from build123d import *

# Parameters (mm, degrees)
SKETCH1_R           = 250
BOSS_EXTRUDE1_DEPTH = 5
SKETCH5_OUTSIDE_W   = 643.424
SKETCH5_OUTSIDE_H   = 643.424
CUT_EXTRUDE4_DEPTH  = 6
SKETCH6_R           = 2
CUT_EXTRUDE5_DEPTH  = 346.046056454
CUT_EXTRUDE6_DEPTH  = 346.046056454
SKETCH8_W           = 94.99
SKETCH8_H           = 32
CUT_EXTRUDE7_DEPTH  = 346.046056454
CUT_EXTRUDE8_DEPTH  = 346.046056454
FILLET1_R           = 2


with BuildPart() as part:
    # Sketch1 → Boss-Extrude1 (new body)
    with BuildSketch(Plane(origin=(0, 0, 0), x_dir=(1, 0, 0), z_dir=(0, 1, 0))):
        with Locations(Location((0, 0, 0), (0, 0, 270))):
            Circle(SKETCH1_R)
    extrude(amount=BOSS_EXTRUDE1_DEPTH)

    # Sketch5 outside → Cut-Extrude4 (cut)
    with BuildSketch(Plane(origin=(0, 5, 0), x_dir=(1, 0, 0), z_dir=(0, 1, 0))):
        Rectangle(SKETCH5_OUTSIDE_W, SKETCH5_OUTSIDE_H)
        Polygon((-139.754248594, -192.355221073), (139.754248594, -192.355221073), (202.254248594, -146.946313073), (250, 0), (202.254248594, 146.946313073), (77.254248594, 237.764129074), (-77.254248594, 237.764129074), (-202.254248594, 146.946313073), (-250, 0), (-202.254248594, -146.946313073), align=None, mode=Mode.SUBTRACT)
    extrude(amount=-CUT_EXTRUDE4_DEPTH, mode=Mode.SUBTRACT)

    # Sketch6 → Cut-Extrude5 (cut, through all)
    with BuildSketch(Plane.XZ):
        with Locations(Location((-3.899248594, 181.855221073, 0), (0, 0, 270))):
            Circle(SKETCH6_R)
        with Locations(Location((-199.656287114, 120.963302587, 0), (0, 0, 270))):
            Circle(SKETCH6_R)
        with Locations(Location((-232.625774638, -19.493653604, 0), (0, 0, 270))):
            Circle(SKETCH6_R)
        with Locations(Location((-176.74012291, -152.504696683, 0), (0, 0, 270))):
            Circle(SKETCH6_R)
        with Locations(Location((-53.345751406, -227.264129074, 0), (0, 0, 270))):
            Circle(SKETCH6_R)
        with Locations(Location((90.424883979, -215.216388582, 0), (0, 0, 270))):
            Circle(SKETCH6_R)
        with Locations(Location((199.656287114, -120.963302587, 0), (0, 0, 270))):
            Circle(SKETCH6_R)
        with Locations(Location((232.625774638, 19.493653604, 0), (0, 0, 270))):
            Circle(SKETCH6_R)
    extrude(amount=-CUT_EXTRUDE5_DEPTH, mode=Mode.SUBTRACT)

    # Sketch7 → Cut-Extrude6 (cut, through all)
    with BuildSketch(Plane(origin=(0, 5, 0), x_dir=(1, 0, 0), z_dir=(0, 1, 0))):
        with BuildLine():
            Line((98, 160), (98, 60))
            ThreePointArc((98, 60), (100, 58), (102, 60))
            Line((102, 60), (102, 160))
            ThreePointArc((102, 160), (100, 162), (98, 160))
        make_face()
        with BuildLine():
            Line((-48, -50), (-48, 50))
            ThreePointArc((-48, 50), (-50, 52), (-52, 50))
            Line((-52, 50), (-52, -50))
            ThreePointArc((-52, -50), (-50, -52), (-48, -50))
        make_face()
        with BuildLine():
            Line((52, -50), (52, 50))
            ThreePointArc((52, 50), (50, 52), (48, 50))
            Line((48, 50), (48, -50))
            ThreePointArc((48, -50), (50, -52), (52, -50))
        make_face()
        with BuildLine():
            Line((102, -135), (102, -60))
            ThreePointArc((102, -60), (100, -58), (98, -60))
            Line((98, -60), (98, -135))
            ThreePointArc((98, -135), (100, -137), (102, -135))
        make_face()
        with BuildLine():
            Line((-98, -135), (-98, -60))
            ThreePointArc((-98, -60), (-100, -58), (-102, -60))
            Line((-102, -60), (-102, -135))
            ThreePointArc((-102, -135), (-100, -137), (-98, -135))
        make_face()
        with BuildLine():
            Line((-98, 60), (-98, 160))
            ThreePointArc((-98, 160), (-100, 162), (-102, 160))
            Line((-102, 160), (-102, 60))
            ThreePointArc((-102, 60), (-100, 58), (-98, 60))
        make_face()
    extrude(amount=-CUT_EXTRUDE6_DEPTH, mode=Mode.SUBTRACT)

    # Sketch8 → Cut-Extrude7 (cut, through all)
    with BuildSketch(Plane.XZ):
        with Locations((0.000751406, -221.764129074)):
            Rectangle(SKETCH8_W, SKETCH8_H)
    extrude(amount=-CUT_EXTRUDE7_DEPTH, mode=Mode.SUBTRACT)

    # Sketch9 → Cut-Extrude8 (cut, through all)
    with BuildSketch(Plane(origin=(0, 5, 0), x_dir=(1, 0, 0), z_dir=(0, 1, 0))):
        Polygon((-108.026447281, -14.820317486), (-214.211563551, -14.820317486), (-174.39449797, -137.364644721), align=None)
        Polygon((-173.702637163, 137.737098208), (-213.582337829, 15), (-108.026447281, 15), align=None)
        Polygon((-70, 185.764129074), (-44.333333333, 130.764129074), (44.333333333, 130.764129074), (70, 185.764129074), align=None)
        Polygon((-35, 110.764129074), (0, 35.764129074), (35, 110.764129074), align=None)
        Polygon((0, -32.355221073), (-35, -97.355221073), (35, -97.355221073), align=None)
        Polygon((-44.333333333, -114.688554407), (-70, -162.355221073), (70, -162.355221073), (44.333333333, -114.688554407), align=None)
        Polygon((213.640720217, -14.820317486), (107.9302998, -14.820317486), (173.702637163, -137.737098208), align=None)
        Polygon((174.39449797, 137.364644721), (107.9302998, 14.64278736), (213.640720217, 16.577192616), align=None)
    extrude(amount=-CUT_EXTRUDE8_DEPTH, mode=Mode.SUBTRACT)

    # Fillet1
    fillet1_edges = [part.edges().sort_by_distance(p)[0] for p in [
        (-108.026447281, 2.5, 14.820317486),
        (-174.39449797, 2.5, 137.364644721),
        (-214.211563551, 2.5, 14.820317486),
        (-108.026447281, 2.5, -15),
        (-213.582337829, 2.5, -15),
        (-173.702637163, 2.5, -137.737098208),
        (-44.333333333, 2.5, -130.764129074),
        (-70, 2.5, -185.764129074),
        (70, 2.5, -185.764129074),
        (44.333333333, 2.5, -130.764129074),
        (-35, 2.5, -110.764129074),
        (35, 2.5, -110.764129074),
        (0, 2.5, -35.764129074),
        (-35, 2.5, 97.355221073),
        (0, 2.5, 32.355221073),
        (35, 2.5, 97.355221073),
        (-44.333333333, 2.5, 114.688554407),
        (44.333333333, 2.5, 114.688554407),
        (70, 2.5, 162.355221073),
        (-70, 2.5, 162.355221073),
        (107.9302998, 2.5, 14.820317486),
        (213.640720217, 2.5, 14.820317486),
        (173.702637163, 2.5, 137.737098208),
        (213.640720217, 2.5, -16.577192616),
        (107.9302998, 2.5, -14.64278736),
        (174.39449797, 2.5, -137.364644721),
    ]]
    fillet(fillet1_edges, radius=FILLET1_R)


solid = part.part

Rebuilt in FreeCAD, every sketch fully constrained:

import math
import FreeCAD as App
import Part
import Sketcher
Q = App.Units.Quantity


def edges_at(feature, points):
    """Names of the edges that pass closest to the given points."""
    edges = feature.Shape.Edges
    near = lambda p: min(range(len(edges)), key=lambda i: edges[i].distToShape(Part.Vertex(*p))[0])
    return sorted({f"Edge{near(p) + 1}" for p in points})


def add_polygon(sketch, points):
    """Adds a closed chain of lines whose ends are joined by coincident constraints."""
    first, n = sketch.GeometryCount, len(points)
    for a, b in zip(points, points[1:] + points[:1]):
        sketch.addGeometry(Part.LineSegment(App.Vector(*a, 0), App.Vector(*b, 0)), False)
    for i in range(n):
        sketch.addConstraint(Sketcher.Constraint("Coincident", first + i, 2, first + (i + 1) % n, 1))

doc = App.newDocument("Part")
body = doc.addObject("PartDesign::Body", "Body")

# Sketch on XZ plane
sketch1 = body.newObject("Sketcher::SketchObject", "Sketch")
sketch1.AttachmentSupport = (doc.getObject("XZ_Plane"), [""])
sketch1.MapMode = "FlatFace"
sketch1.addGeometry(Part.Circle(App.Vector(0, 0, 0), App.Vector(0, 0, 1), 250), False)
sketch1.addConstraint([
    Sketcher.Constraint("Coincident", 0, 3, -1, 1),
    Sketcher.Constraint("Diameter", 0, 500.0),
])
pad1 = body.newObject("PartDesign::Pad", "Pad")
pad1.Profile = sketch1
pad1.Length = 5
pad1.Reversed = True

# Sketch on XZ plane
sketch2 = body.newObject("Sketcher::SketchObject", "Sketch001")
sketch2.AttachmentSupport = (doc.getObject("XZ_Plane"), [""])
sketch2.MapMode = "FlatFace"
sketch2.AttachmentOffset = App.Placement(App.Vector(0, 0, -5), App.Rotation())
add_polygon(sketch2, [(-321.712, -321.712), (-321.712, 321.712), (321.712, 321.712), (321.712, -321.712)])  # lines 0-3
add_polygon(sketch2, [(139.754249, 192.355221), (-139.754249, 192.355221), (-202.254249, 146.946313), (-250, 0), (-202.254249, -146.946313), (-77.254249, -237.764129), (77.254249, -237.764129), (202.254249, -146.946313), (250, 0), (202.254249, 146.946313)])  # lines 4-13
sketch2.addConstraint([
    Sketcher.Constraint("Vertical", 0),
    Sketcher.Constraint("Horizontal", 1),
    Sketcher.Constraint("Vertical", 2),
    Sketcher.Constraint("Horizontal", 3),
    Sketcher.Constraint("Horizontal", 4),
    Sketcher.Constraint("Horizontal", 9),
    Sketcher.Constraint("Symmetric", 0, 2, 2, 2, -1, 1),
    Sketcher.Constraint("Symmetric", 5, 2, 10, 2, -1, 1),
    Sketcher.Constraint("Symmetric", 6, 2, 11, 2, -1, 1),
    Sketcher.Constraint("Symmetric", 7, 2, 12, 2, -1, 1),
    Sketcher.Constraint("Symmetric", 7, 2, 10, 2, -2),
    Sketcher.Constraint("PointOnObject", 6, 2, -1),
    Sketcher.Constraint("Parallel", 5, 10),
    Sketcher.Constraint("Parallel", 8, 13),
    Sketcher.Constraint("Equal", 3, 0),
    Sketcher.Constraint("Equal", 7, 8),
    Sketcher.Constraint("Equal", 8, 10),
    Sketcher.Constraint("Angle", 5, Q("-144 deg")),
    Sketcher.Constraint("Angle", 6, Q("-108 deg")),
    Sketcher.Constraint("DistanceX", 6, 2, -1, 1, 250.0),
    Sketcher.Constraint("DistanceX", 7, 2, 8, 2, 125.0),
    Sketcher.Constraint("DistanceX", 5, 2, 4, 2, 62.5),
    Sketcher.Constraint("DistanceX", 1, 1, 1, 2, 643.424),
])
pocket1 = body.newObject("PartDesign::Pocket", "Pocket")
pocket1.Profile = sketch2
pocket1.Length = 6
pocket1.Reversed = True

# Sketch on XZ plane
sketch3 = body.newObject("Sketcher::SketchObject", "Sketch002")
sketch3.AttachmentSupport = (doc.getObject("XZ_Plane"), [""])
sketch3.MapMode = "FlatFace"
sketch3.addGeometry([
    Part.Circle(App.Vector(-3.899249, 181.855221, 0), App.Vector(0, 0, 1), 2),  # 0
    Part.Circle(App.Vector(-199.656287, 120.963303, 0), App.Vector(0, 0, 1), 2),  # 1
    Part.Circle(App.Vector(-232.625775, -19.493654, 0), App.Vector(0, 0, 1), 2),  # 2
    Part.Circle(App.Vector(-176.740123, -152.504697, 0), App.Vector(0, 0, 1), 2),  # 3
    Part.Circle(App.Vector(-53.345751, -227.264129, 0), App.Vector(0, 0, 1), 2),  # 4
    Part.Circle(App.Vector(90.424884, -215.216389, 0), App.Vector(0, 0, 1), 2),  # 5
    Part.Circle(App.Vector(199.656287, -120.963303, 0), App.Vector(0, 0, 1), 2),  # 6
    Part.Circle(App.Vector(232.625775, 19.493654, 0), App.Vector(0, 0, 1), 2),  # 7
], False)
sketch3.addConstraint([
    Sketcher.Constraint("Equal", 0, 1),
    Sketcher.Constraint("Equal", 1, 2),
    Sketcher.Constraint("Equal", 2, 3),
    Sketcher.Constraint("Equal", 3, 4),
    Sketcher.Constraint("Equal", 4, 5),
    Sketcher.Constraint("Equal", 5, 6),
    Sketcher.Constraint("Equal", 6, 7),
    Sketcher.Constraint("Symmetric", 1, 3, 6, 3, -1, 1),
    Sketcher.Constraint("Symmetric", 2, 3, 7, 3, -1, 1),
    Sketcher.Constraint("Diameter", 0, 4.0),
    Sketcher.Constraint("DistanceY", 3, 3, 1, 3, 273.467999),
    Sketcher.Constraint("DistanceX", 0, 3, -1, 1, 3.899249),
    Sketcher.Constraint("DistanceY", -1, 1, 0, 3, 181.855221),
    Sketcher.Constraint("DistanceX", 4, 3, -1, 1, 53.345751),
    Sketcher.Constraint("DistanceY", 4, 3, -1, 1, 227.264129),
    Sketcher.Constraint("DistanceY", 5, 3, -1, 1, 215.216389),
    Sketcher.Constraint("DistanceX", 1, 3, 0, 3, 195.757039),
    Sketcher.Constraint("DistanceY", 1, 3, 0, 3, 60.891918),
    Sketcher.Constraint("DistanceX", 2, 3, 3, 3, 55.885652),
    Sketcher.Constraint("DistanceX", 3, 3, 4, 3, 123.394372),
    Sketcher.Constraint("DistanceX", 2, 3, 5, 3, 323.050659),
    Sketcher.Constraint("DistanceY", 6, 3, 2, 3, 101.469649),
])
pocket2 = body.newObject("PartDesign::Pocket", "Pocket001")
pocket2.Profile = sketch3
pocket2.Type = "ThroughAll"

# Sketch on XZ plane
sketch4 = body.newObject("Sketcher::SketchObject", "Sketch003")
sketch4.AttachmentSupport = (doc.getObject("XZ_Plane"), [""])
sketch4.MapMode = "FlatFace"
sketch4.AttachmentOffset = App.Placement(App.Vector(0, 0, -5), App.Rotation())
sketch4.addGeometry([
    Part.LineSegment(App.Vector(98, -160, 0), App.Vector(98, -60, 0)),  # 0
    Part.ArcOfCircle(Part.Circle(App.Vector(100, -60, 0), App.Vector(0, 0, 1), 2), math.radians(0), math.radians(180)),  # 1
    Part.LineSegment(App.Vector(102, -60, 0), App.Vector(102, -160, 0)),  # 2
    Part.ArcOfCircle(Part.Circle(App.Vector(100, -160, 0), App.Vector(0, 0, 1), 2), math.radians(180), math.radians(360)),  # 3
    Part.LineSegment(App.Vector(-48, 50, 0), App.Vector(-48, -50, 0)),  # 4
    Part.ArcOfCircle(Part.Circle(App.Vector(-50, -50, 0), App.Vector(0, 0, 1), 2), math.radians(180), math.radians(360)),  # 5
    Part.LineSegment(App.Vector(-52, -50, 0), App.Vector(-52, 50, 0)),  # 6
    Part.ArcOfCircle(Part.Circle(App.Vector(-50, 50, 0), App.Vector(0, 0, 1), 2), math.radians(0), math.radians(180)),  # 7
    Part.LineSegment(App.Vector(52, 50, 0), App.Vector(52, -50, 0)),  # 8
    Part.ArcOfCircle(Part.Circle(App.Vector(50, -50, 0), App.Vector(0, 0, 1), 2), math.radians(180), math.radians(360)),  # 9
    Part.LineSegment(App.Vector(48, -50, 0), App.Vector(48, 50, 0)),  # 10
    Part.ArcOfCircle(Part.Circle(App.Vector(50, 50, 0), App.Vector(0, 0, 1), 2), math.radians(0), math.radians(180)),  # 11
    Part.LineSegment(App.Vector(102, 135, 0), App.Vector(102, 60, 0)),  # 12
    Part.ArcOfCircle(Part.Circle(App.Vector(100, 60, 0), App.Vector(0, 0, 1), 2), math.radians(180), math.radians(360)),  # 13
    Part.LineSegment(App.Vector(98, 60, 0), App.Vector(98, 135, 0)),  # 14
    Part.ArcOfCircle(Part.Circle(App.Vector(100, 135, 0), App.Vector(0, 0, 1), 2), math.radians(0), math.radians(180)),  # 15
    Part.LineSegment(App.Vector(-98, 135, 0), App.Vector(-98, 60, 0)),  # 16
    Part.ArcOfCircle(Part.Circle(App.Vector(-100, 60, 0), App.Vector(0, 0, 1), 2), math.radians(180), math.radians(360)),  # 17
    Part.LineSegment(App.Vector(-102, 60, 0), App.Vector(-102, 135, 0)),  # 18
    Part.ArcOfCircle(Part.Circle(App.Vector(-100, 135, 0), App.Vector(0, 0, 1), 2), math.radians(0), math.radians(180)),  # 19
    Part.LineSegment(App.Vector(-98, -60, 0), App.Vector(-98, -160, 0)),  # 20
    Part.ArcOfCircle(Part.Circle(App.Vector(-100, -160, 0), App.Vector(0, 0, 1), 2), math.radians(180), math.radians(360)),  # 21
    Part.LineSegment(App.Vector(-102, -160, 0), App.Vector(-102, -60, 0)),  # 22
    Part.ArcOfCircle(Part.Circle(App.Vector(-100, -60, 0), App.Vector(0, 0, 1), 2), math.radians(0), math.radians(180)),  # 23
], False)
sketch4.addConstraint([
    Sketcher.Constraint("Tangent", 0, 2, 1, 2),
    Sketcher.Constraint("Tangent", 1, 1, 2, 1),
    Sketcher.Constraint("Tangent", 2, 2, 3, 2),
    Sketcher.Constraint("Tangent", 3, 1, 0, 1),
    Sketcher.Constraint("Tangent", 4, 2, 5, 2),
    Sketcher.Constraint("Tangent", 5, 1, 6, 1),
    Sketcher.Constraint("Tangent", 6, 2, 7, 2),
    Sketcher.Constraint("Tangent", 7, 1, 4, 1),
    Sketcher.Constraint("Tangent", 8, 2, 9, 2),
    Sketcher.Constraint("Tangent", 9, 1, 10, 1),
    Sketcher.Constraint("Tangent", 10, 2, 11, 2),
    Sketcher.Constraint("Tangent", 11, 1, 8, 1),
    Sketcher.Constraint("Tangent", 12, 2, 13, 2),
    Sketcher.Constraint("Tangent", 13, 1, 14, 1),
    Sketcher.Constraint("Tangent", 14, 2, 15, 2),
    Sketcher.Constraint("Tangent", 15, 1, 12, 1),
    Sketcher.Constraint("Tangent", 16, 2, 17, 2),
    Sketcher.Constraint("Tangent", 17, 1, 18, 1),
    Sketcher.Constraint("Tangent", 18, 2, 19, 2),
    Sketcher.Constraint("Tangent", 19, 1, 16, 1),
    Sketcher.Constraint("Tangent", 20, 2, 21, 2),
    Sketcher.Constraint("Tangent", 21, 1, 22, 1),
    Sketcher.Constraint("Tangent", 22, 2, 23, 2),
    Sketcher.Constraint("Tangent", 23, 1, 20, 1),
    Sketcher.Constraint("Vertical", 0),
    Sketcher.Constraint("Vertical", 2),
    Sketcher.Constraint("Vertical", 4),
    Sketcher.Constraint("Vertical", 6),
    Sketcher.Constraint("Vertical", 8),
    Sketcher.Constraint("Vertical", 10),
    Sketcher.Constraint("Vertical", 12),
    Sketcher.Constraint("Vertical", 14),
    Sketcher.Constraint("Vertical", 16),
    Sketcher.Constraint("Vertical", 18),
    Sketcher.Constraint("Vertical", 20),
    Sketcher.Constraint("Vertical", 22),
    Sketcher.Constraint("Equal", 3, 5),
    Sketcher.Constraint("Equal", 7, 9),
    Sketcher.Constraint("Equal", 11, 13),
    Sketcher.Constraint("Equal", 15, 17),
    Sketcher.Constraint("Equal", 19, 21),
    Sketcher.Constraint("Symmetric", 7, 3, 9, 3, -1, 1),
    Sketcher.Constraint("Symmetric", 1, 3, 17, 3, -1, 1),
    Sketcher.Constraint("Symmetric", 13, 3, 23, 3, -1, 1),
    Sketcher.Constraint("Symmetric", 13, 3, 17, 3, -2),
    Sketcher.Constraint("Horizontal", 5, 3, 9, 3),
    Sketcher.Constraint("Horizontal", 7, 3, 11, 3),
    Sketcher.Constraint("Horizontal", 15, 3, 19, 3),
    Sketcher.Constraint("Horizontal", 3, 3, 21, 3),
    Sketcher.Constraint("Equal", 2, 4),
    Sketcher.Constraint("Radius", 1, 2.0),
    Sketcher.Constraint("DistanceY", 0, 1, 0, 2, 100.0),
    Sketcher.Constraint("DistanceY", 12, 2, 12, 1, 75.0),
    Sketcher.Constraint("DistanceX", -1, 1, 1, 3, 100.0),
    Sketcher.Constraint("DistanceY", 1, 3, -1, 1, 60.0),
    Sketcher.Constraint("DistanceX", 5, 3, -1, 1, 50.0),
])
pocket3 = body.newObject("PartDesign::Pocket", "Pocket002")
pocket3.Profile = sketch4
pocket3.Type = "ThroughAll"
pocket3.Reversed = True

# Sketch on XZ plane
sketch5 = body.newObject("Sketcher::SketchObject", "Sketch004")
sketch5.AttachmentSupport = (doc.getObject("XZ_Plane"), [""])
sketch5.MapMode = "FlatFace"
add_polygon(sketch5, [(-47.494249, -205.764129), (-47.494249, -237.764129), (47.495751, -237.764129), (47.495751, -205.764129)])  # lines 0-3
sketch5.addConstraint([
    Sketcher.Constraint("Vertical", 0),
    Sketcher.Constraint("Horizontal", 1),
    Sketcher.Constraint("Vertical", 2),
    Sketcher.Constraint("Horizontal", 3),
    Sketcher.Constraint("DistanceY", 0, 2, 0, 1, 32.0),
    Sketcher.Constraint("DistanceX", 1, 1, 1, 2, 94.99),
    Sketcher.Constraint("DistanceX", 0, 2, -1, 1, 47.494249),
    Sketcher.Constraint("DistanceY", 0, 2, -1, 1, 237.764129),
])
pocket4 = body.newObject("PartDesign::Pocket", "Pocket003")
pocket4.Profile = sketch5
pocket4.Type = "ThroughAll"

# Sketch on XZ plane
sketch6 = body.newObject("Sketcher::SketchObject", "Sketch005")
sketch6.AttachmentSupport = (doc.getObject("XZ_Plane"), [""])
sketch6.MapMode = "FlatFace"
sketch6.AttachmentOffset = App.Placement(App.Vector(0, 0, -5), App.Rotation())
add_polygon(sketch6, [(-108.026447, 14.820317), (-214.211564, 14.820317), (-174.394498, 137.364645)])  # lines 0-2
add_polygon(sketch6, [(-173.702637, -137.737098), (-213.582338, -15), (-108.026447, -15)])  # lines 3-5
add_polygon(sketch6, [(-70, -185.764129), (-44.333333, -130.764129), (44.333333, -130.764129), (70, -185.764129)])  # lines 6-9
add_polygon(sketch6, [(-35, -110.764129), (0, -35.764129), (35, -110.764129)])  # lines 10-12
add_polygon(sketch6, [(0, 32.355221), (-35, 97.355221), (35, 97.355221)])  # lines 13-15
add_polygon(sketch6, [(-44.333333, 114.688554), (-70, 162.355221), (70, 162.355221), (44.333333, 114.688554)])  # lines 16-19
add_polygon(sketch6, [(213.64072, 14.820317), (107.9303, 14.820317), (173.702637, 137.737098)])  # lines 20-22
add_polygon(sketch6, [(174.394498, -137.364645), (107.9303, -14.642787), (213.64072, -16.577193)])  # lines 23-25
sketch6.addConstraint([
    Sketcher.Constraint("Horizontal", 0),
    Sketcher.Constraint("Horizontal", 4),
    Sketcher.Constraint("Horizontal", 7),
    Sketcher.Constraint("Horizontal", 9),
    Sketcher.Constraint("Horizontal", 12),
    Sketcher.Constraint("Horizontal", 14),
    Sketcher.Constraint("Horizontal", 17),
    Sketcher.Constraint("Horizontal", 19),
    Sketcher.Constraint("Horizontal", 20),
    Sketcher.Constraint("Symmetric", 5, 2, 21, 2, -1, 1),
    Sketcher.Constraint("Symmetric", 1, 2, 25, 2, -1, 1),
    Sketcher.Constraint("PointOnObject", 10, 2, -2),
    Sketcher.Constraint("PointOnObject", 15, 2, -2),
    Sketcher.Constraint("Parallel", 6, 10),
    Sketcher.Constraint("Parallel", 8, 11),
    Sketcher.Constraint("Parallel", 13, 16),
    Sketcher.Constraint("Parallel", 15, 18),
    Sketcher.Constraint("Parallel", 5, 21),
    Sketcher.Constraint("Parallel", 3, 22),
    Sketcher.Constraint("Parallel", 2, 23),
    Sketcher.Constraint("Parallel", 1, 25),
    Sketcher.Constraint("Horizontal", 2, 2, 20, 2),
    Sketcher.Constraint("Vertical", 2, 2, 4, 2),
    Sketcher.Constraint("Vertical", 12, 2, 13, 2),
    Sketcher.Constraint("Vertical", 11, 2, 14, 2),
    Sketcher.Constraint("Vertical", 9, 2, 16, 2),
    Sketcher.Constraint("Vertical", 8, 2, 17, 2),
    Sketcher.Constraint("Vertical", 7, 2, 18, 2),
    Sketcher.Constraint("Vertical", 20, 2, 23, 2),
    Sketcher.Constraint("Vertical", 22, 2, 24, 2),
    Sketcher.Constraint("Equal", 6, 8),
    Sketcher.Constraint("DistanceX", 9, 2, 9, 1, 140.0),
    Sketcher.Constraint("DistanceX", 12, 2, 12, 1, 70.0),
    Sketcher.Constraint("Angle", 1, Q("72 deg")),
    Sketcher.Constraint("Angle", 3, Q("108 deg")),
    Sketcher.Constraint("DistanceY", 3, 2, -1, 1, 15.0),
    Sketcher.Constraint("DistanceX", -1, 1, 8, 2, 70.0),
    Sketcher.Constraint("DistanceY", 8, 2, 7, 2, 55.0),
    Sketcher.Constraint("DistanceY", 6, 2, 10, 2, 95.0),
    Sketcher.Constraint("DistanceY", 7, 2, 11, 2, 20.0),
    Sketcher.Constraint("DistanceY", 15, 2, 13, 2, 65.0),
    Sketcher.Constraint("DistanceY", 13, 2, 16, 2, 65.0),
    Sketcher.Constraint("DistanceX", 4, 1, 4, 2, 105.555891),
    Sketcher.Constraint("DistanceX", 20, 2, 20, 1, 105.71042),
    Sketcher.Constraint("DistanceY", 5, 2, -1, 1, 137.737098),
    Sketcher.Constraint("DistanceX", -1, 1, 20, 2, 107.9303),
    Sketcher.Constraint("DistanceX", 23, 2, 25, 2, 66.464198),
    Sketcher.Constraint("Distance", 1, 128.850731),
    Sketcher.Constraint("DistanceY", 6, 2, -1, 1, 130.764129),
    Sketcher.Constraint("DistanceY", -1, 1, 13, 2, 97.355221),
])
pocket5 = body.newObject("PartDesign::Pocket", "Pocket004")
pocket5.Profile = sketch6
pocket5.Type = "ThroughAll"
pocket5.Reversed = True
doc.recompute()

fillet = body.newObject("PartDesign::Fillet", "Fillet")
fillet.Base = (pocket5, edges_at(pocket5, [
    (-108.026, 2.5, 14.82),
    (-174.394, 2.5, 137.365),
    (-214.212, 2.5, 14.82),
    (-108.026, 2.5, -15),
    (-213.582, 2.5, -15),
    (-173.703, 2.5, -137.737),
    (-44.333, 2.5, -130.764),
    (-70, 2.5, -185.764),
    (70, 2.5, -185.764),
    (44.333, 2.5, -130.764),
    (-35, 2.5, -110.764),
    (35, 2.5, -110.764),
    (0, 2.5, -35.764),
    (-35, 2.5, 97.355),
    (0, 2.5, 32.355),
    (35, 2.5, 97.355),
    (-44.333, 2.5, 114.689),
    (44.333, 2.5, 114.689),
    (70, 2.5, 162.355),
    (-70, 2.5, 162.355),
    (107.93, 2.5, 14.82),
    (213.641, 2.5, 14.82),
    (173.703, 2.5, 137.737),
    (213.641, 2.5, -16.577),
    (107.93, 2.5, -14.643),
    (174.394, 2.5, -137.365),
]))
fillet.Radius = 2

doc.recompute()
